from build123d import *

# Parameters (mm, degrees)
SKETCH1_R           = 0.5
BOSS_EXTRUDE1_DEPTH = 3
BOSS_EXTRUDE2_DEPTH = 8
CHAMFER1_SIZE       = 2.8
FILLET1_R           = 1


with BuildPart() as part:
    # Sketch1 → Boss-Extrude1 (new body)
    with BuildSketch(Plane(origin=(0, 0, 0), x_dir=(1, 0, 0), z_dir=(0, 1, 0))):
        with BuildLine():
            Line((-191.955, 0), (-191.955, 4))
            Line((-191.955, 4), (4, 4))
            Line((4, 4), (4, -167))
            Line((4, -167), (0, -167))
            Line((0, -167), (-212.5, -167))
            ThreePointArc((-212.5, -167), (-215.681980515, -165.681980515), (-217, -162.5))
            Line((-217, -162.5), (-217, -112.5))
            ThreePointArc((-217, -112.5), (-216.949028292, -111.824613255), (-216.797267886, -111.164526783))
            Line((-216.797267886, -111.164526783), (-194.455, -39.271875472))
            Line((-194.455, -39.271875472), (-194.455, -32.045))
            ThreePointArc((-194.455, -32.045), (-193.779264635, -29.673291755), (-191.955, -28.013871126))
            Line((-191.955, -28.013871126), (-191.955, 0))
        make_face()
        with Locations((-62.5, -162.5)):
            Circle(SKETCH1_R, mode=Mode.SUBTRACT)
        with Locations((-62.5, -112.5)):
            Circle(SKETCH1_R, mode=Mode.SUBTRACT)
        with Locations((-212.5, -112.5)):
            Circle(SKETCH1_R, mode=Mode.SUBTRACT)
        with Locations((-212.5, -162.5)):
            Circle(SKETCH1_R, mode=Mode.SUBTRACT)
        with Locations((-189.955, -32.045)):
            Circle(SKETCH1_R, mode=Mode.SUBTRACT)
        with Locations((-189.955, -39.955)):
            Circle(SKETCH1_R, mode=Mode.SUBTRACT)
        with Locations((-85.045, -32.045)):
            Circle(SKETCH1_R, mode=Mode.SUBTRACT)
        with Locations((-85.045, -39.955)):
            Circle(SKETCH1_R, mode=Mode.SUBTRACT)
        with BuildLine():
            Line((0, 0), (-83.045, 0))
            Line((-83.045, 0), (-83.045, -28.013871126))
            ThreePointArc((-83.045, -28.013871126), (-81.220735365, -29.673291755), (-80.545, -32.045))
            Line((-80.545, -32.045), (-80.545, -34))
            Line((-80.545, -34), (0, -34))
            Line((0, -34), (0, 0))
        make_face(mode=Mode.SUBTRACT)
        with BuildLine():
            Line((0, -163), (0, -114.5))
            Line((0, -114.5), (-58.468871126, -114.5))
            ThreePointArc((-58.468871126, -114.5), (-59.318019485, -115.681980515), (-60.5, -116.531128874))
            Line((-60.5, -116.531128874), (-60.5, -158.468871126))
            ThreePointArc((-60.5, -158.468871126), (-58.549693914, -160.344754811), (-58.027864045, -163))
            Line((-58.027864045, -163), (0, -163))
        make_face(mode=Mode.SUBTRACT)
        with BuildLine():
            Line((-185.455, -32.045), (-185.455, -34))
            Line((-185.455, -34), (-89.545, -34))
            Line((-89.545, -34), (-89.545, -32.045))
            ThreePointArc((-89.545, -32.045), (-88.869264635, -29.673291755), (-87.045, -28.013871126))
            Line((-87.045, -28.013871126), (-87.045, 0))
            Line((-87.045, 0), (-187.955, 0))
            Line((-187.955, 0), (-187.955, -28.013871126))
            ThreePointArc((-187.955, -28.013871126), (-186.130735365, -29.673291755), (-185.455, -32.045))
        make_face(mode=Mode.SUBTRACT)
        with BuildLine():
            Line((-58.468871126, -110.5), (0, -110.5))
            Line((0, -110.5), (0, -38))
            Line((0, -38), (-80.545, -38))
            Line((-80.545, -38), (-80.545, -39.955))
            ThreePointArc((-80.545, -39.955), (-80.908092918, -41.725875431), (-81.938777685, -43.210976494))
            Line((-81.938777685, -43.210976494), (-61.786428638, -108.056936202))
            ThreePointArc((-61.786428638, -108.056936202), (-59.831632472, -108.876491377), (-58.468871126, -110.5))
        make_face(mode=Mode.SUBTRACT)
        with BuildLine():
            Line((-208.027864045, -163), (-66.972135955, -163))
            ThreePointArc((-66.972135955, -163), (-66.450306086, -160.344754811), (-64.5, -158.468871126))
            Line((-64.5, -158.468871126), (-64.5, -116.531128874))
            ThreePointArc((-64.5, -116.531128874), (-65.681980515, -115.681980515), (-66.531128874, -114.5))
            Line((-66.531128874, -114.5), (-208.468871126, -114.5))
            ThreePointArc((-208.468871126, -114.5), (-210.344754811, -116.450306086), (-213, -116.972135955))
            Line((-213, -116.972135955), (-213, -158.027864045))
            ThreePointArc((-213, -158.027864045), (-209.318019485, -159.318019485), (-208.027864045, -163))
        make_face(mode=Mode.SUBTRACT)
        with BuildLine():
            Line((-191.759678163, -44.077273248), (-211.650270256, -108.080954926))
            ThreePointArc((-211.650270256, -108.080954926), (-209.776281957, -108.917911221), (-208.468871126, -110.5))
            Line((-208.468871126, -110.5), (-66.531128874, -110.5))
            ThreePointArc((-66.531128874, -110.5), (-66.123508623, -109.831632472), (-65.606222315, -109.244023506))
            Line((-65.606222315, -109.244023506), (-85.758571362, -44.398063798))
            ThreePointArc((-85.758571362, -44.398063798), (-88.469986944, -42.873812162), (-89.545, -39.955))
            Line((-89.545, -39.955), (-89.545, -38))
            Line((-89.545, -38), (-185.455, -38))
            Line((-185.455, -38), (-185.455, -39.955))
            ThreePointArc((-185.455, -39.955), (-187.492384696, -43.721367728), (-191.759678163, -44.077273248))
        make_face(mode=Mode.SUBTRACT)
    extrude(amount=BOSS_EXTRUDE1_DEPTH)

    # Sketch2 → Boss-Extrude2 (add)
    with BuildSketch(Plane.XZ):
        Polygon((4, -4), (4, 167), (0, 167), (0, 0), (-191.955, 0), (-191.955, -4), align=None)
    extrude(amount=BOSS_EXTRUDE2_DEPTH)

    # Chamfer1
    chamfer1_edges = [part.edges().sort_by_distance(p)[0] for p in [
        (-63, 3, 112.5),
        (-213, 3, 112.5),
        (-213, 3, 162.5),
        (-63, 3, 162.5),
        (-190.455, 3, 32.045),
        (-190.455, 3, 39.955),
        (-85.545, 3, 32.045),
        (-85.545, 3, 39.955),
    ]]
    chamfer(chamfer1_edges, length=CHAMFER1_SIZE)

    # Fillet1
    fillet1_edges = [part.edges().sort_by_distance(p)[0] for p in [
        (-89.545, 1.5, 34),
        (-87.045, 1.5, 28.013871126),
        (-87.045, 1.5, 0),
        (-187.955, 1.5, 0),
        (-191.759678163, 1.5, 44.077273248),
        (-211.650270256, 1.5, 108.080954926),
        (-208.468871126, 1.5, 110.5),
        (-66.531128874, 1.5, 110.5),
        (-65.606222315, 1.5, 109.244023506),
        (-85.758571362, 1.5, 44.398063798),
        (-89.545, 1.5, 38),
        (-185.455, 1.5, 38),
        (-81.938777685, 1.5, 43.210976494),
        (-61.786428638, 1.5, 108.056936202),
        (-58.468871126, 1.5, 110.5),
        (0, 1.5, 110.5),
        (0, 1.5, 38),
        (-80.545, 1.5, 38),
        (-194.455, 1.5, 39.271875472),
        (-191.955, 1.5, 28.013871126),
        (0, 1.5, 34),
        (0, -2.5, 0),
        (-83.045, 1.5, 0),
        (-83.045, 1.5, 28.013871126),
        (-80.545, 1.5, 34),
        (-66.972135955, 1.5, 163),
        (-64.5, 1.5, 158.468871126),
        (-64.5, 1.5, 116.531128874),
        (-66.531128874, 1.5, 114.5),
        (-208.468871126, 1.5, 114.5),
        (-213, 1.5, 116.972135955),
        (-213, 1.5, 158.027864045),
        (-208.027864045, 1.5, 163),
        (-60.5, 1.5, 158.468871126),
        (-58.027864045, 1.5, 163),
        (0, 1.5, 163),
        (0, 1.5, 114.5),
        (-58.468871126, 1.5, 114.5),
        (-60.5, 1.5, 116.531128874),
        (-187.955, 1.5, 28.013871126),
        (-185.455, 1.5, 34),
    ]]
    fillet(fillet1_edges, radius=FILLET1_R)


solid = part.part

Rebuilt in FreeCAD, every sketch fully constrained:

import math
import FreeCAD as App
import Part
import Sketcher


def edges_at(feature, points):
    """Names of the edges that pass closest to the given points."""
    edges = feature.Shape.Edges
    near = lambda p: min(range(len(edges)), key=lambda i: edges[i].distToShape(Part.Vertex(*p))[0])
    return sorted({f"Edge{near(p) + 1}" for p in points})

doc = App.newDocument("Part")
params = doc.addObject("Spreadsheet::Sheet", "Params")
for row, (alias, value) in enumerate([
    ("sketch1_diameter", "1 mm"),
    ("sketch1_radius", "4.5 mm"),
    ("sketch1_height", "50 mm"),
    ("sketch1_height2", "171 mm"),
    ("sketch1_height3", "34 mm"),
    ("pad1_length", "3 mm"),
    ("sketch2_width", "4 mm"),
    ("sketch2_height", "171 mm"),
    ("pad2_length", "8 mm"),
    ("chamfer_size", "2.8 mm"),
    ("fillet_radius", "1 mm"),
], start=1):
    params.set(f"A{row}", alias)
    params.set(f"B{row}", "=" + value)
    params.setAlias(f"B{row}", alias)

body = doc.addObject("PartDesign::Body", "Body")

sketch1 = body.newObject("Sketcher::SketchObject", "Sketch")
sketch1.AttachmentSupport = (doc.getObject("XZ_Plane"), [""])
sketch1.MapMode = "FlatFace"
sketch1.addGeometry(Part.LineSegment(App.Vector(4, -4, 0), App.Vector(-192, -4, 0)), False)
sketch1.addGeometry(Part.LineSegment(App.Vector(-192, -4, 0), App.Vector(-192, 28, 0)), False)
sketch1.addGeometry(Part.ArcOfCircle(Part.Circle(App.Vector(-190, 32, 0), App.Vector(0, 0, 1), 4.5), math.radians(-180), math.radians(-116)), False)
sketch1.addGeometry(Part.LineSegment(App.Vector(-194.5, 32, 0), App.Vector(-194.5, 39.3, 0)), False)
sketch1.addGeometry(Part.LineSegment(App.Vector(-194.5, 39.3, 0), App.Vector(-216.8, 111.2, 0)), False)
sketch1.addGeometry(Part.ArcOfCircle(Part.Circle(App.Vector(-212.5, 112.5, 0), App.Vector(0, 0, 1), 4.5), math.radians(-180), math.radians(-162.74)), False)
sketch1.addGeometry(Part.LineSegment(App.Vector(-217, 112.5, 0), App.Vector(-217, 162.5, 0)), False)
sketch1.addGeometry(Part.ArcOfCircle(Part.Circle(App.Vector(-212.5, 162.5, 0), App.Vector(0, 0, 1), 4.5), math.radians(90), math.radians(180)), False)
sketch1.addGeometry(Part.LineSegment(App.Vector(-212.5, 167, 0), App.Vector(4, 167, 0)), False)
sketch1.addGeometry(Part.LineSegment(App.Vector(4, 167, 0), App.Vector(4, -4, 0)), False)
sketch1.addGeometry(Part.LineSegment(App.Vector(0, 163, 0), App.Vector(-58, 163, 0)), False)
sketch1.addGeometry(Part.ArcOfCircle(Part.Circle(App.Vector(-62.5, 162.5, 0), App.Vector(0, 0, 1), 4.5), math.radians(-64), math.radians(6)), False)
sketch1.addGeometry(Part.LineSegment(App.Vector(-60.5, 158.5, 0), App.Vector(-60.5, 116.5, 0)), False)
sketch1.addGeometry(Part.ArcOfCircle(Part.Circle(App.Vector(-62.5, 112.5, 0), App.Vector(0, 0, 1), 4.5), math.radians(26), math.radians(64)), False)
sketch1.addGeometry(Part.LineSegment(App.Vector(-58.5, 114.5, 0), App.Vector(0, 114.5, 0)), False)
sketch1.addGeometry(Part.LineSegment(App.Vector(0, 114.5, 0), App.Vector(0, 163, 0)), False)
sketch1.addGeometry(Part.Circle(App.Vector(-62.5, 162.5, 0), App.Vector(0, 0, 1), 0.5), False)
sketch1.addGeometry(Part.Circle(App.Vector(-62.5, 112.5, 0), App.Vector(0, 0, 1), 0.5), False)
sketch1.addGeometry(Part.ArcOfCircle(Part.Circle(App.Vector(-212.5, 162.5, 0), App.Vector(0, 0, 1), 4.5), math.radians(-96), math.radians(6)), False)
sketch1.addGeometry(Part.LineSegment(App.Vector(-213, 158, 0), App.Vector(-213, 117, 0)), False)
sketch1.addGeometry(Part.ArcOfCircle(Part.Circle(App.Vector(-212.5, 112.5, 0), App.Vector(0, 0, 1), 4.5), math.radians(26), math.radians(96)), False)
sketch1.addGeometry(Part.LineSegment(App.Vector(-208.5, 114.5, 0), App.Vector(-66.5, 114.5, 0)), False)
sketch1.addGeometry(Part.ArcOfCircle(Part.Circle(App.Vector(-62.5, 112.5, 0), App.Vector(0, 0, 1), 4.5), math.radians(116), math.radians(154)), False)
sketch1.addGeometry(Part.LineSegment(App.Vector(-64.5, 116.5, 0), App.Vector(-64.5, 158.5, 0)), False)
sketch1.addGeometry(Part.ArcOfCircle(Part.Circle(App.Vector(-62.5, 162.5, 0), App.Vector(0, 0, 1), 4.5), math.radians(174), math.radians(244)), False)
sketch1.addGeometry(Part.LineSegment(App.Vector(-67, 163, 0), App.Vector(-208, 163, 0)), False)
sketch1.addGeometry(Part.Circle(App.Vector(-212.5, 162.5, 0), App.Vector(0, 0, 1), 0.5), False)
sketch1.addGeometry(Part.Circle(App.Vector(-212.5, 112.5, 0), App.Vector(0, 0, 1), 0.5), False)
sketch1.addGeometry(Part.ArcOfCircle(Part.Circle(App.Vector(-62.5, 112.5, 0), App.Vector(0, 0, 1), 4.5), math.radians(-81), math.radians(-26)), False)
sketch1.addGeometry(Part.LineSegment(App.Vector(-61.8, 108.1, 0), App.Vector(-81.9, 43.2, 0)), False)
sketch1.addGeometry(Part.ArcOfCircle(Part.Circle(App.Vector(-85, 40, 0), App.Vector(0, 0, 1), 4.5), math.radians(0), math.radians(46)), False)
sketch1.addGeometry(Part.LineSegment(App.Vector(-80.5, 40, 0), App.Vector(-80.5, 38, 0)), False)
sketch1.addGeometry(Part.LineSegment(App.Vector(-80.5, 38, 0), App.Vector(0, 38, 0)), False)
sketch1.addGeometry(Part.LineSegment(App.Vector(0, 38, 0), App.Vector(0, 110.5, 0)), False)
sketch1.addGeometry(Part.LineSegment(App.Vector(0, 110.5, 0), App.Vector(-58.5, 110.5, 0)), False)
sketch1.addGeometry(Part.LineSegment(App.Vector(0, 0, 0), App.Vector(0, 34, 0)), False)
sketch1.addGeometry(Part.LineSegment(App.Vector(0, 34, 0), App.Vector(-80.5, 34, 0)), False)
sketch1.addGeometry(Part.LineSegment(App.Vector(-80.5, 34, 0), App.Vector(-80.5, 32, 0)), False)
sketch1.addGeometry(Part.ArcOfCircle(Part.Circle(App.Vector(-85, 32, 0), App.Vector(0, 0, 1), 4.5), math.radians(-64), math.radians(0)), False)
sketch1.addGeometry(Part.LineSegment(App.Vector(-83, 28, 0), App.Vector(-83, 0, 0)), False)
sketch1.addGeometry(Part.LineSegment(App.Vector(-83, 0, 0), App.Vector(0, 0, 0)), False)
sketch1.addGeometry(Part.Circle(App.Vector(-85, 40, 0), App.Vector(0, 0, 1), 0.5), False)
sketch1.addGeometry(Part.Circle(App.Vector(-85, 32, 0), App.Vector(0, 0, 1), 0.5), False)
sketch1.addGeometry(Part.ArcOfCircle(Part.Circle(App.Vector(-190, 40, 0), App.Vector(0, 0, 1), 4.5), math.radians(0), math.radians(114)), False)
sketch1.addGeometry(Part.LineSegment(App.Vector(-185.5, 40, 0), App.Vector(-185.5, 38, 0)), False)
sketch1.addGeometry(Part.LineSegment(App.Vector(-185.5, 38, 0), App.Vector(-89.5, 38, 0)), False)
sketch1.addGeometry(Part.LineSegment(App.Vector(-89.5, 38, 0), App.Vector(-89.5, 40, 0)), False)
sketch1.addGeometry(Part.ArcOfCircle(Part.Circle(App.Vector(-85, 40, 0), App.Vector(0, 0, 1), 4.5), math.radians(99), math.radians(180)), False)
sketch1.addGeometry(Part.LineSegment(App.Vector(-85.8, 44.4, 0), App.Vector(-65.6, 109.2, 0)), False)
sketch1.addGeometry(Part.ArcOfCircle(Part.Circle(App.Vector(-62.5, 112.5, 0), App.Vector(0, 0, 1), 4.5), math.radians(-153.61), math.radians(-133.65)), False)
sketch1.addGeometry(Part.LineSegment(App.Vector(-66.5, 110.5, 0), App.Vector(-208.5, 110.5, 0)), False)
sketch1.addGeometry(Part.ArcOfCircle(Part.Circle(App.Vector(-212.5, 112.5, 0), App.Vector(0, 0, 1), 4.5), math.radians(-79), math.radians(-26)), False)
sketch1.addGeometry(Part.LineSegment(App.Vector(-211.7, 108.1, 0), App.Vector(-191.8, 44.1, 0)), False)
sketch1.addGeometry(Part.ArcOfCircle(Part.Circle(App.Vector(-190, 32, 0), App.Vector(0, 0, 1), 4.5), math.radians(-64), math.radians(0)), False)
sketch1.addGeometry(Part.LineSegment(App.Vector(-188, 28, 0), App.Vector(-188, 0, 0)), False)
sketch1.addGeometry(Part.LineSegment(App.Vector(-188, 0, 0), App.Vector(-87, 0, 0)), False)
sketch1.addGeometry(Part.LineSegment(App.Vector(-87, 0, 0), App.Vector(-87, 28, 0)), False)
sketch1.addGeometry(Part.ArcOfCircle(Part.Circle(App.Vector(-85, 32, 0), App.Vector(0, 0, 1), 4.5), math.radians(-180), math.radians(-116)), False)
sketch1.addGeometry(Part.LineSegment(App.Vector(-89.5, 32, 0), App.Vector(-89.5, 34, 0)), False)
sketch1.addGeometry(Part.LineSegment(App.Vector(-89.5, 34, 0), App.Vector(-185.5, 34, 0)), False)
sketch1.addGeometry(Part.LineSegment(App.Vector(-185.5, 34, 0), App.Vector(-185.5, 32, 0)), False)
sketch1.addGeometry(Part.Circle(App.Vector(-190, 40, 0), App.Vector(0, 0, 1), 0.5), False)
sketch1.addGeometry(Part.Circle(App.Vector(-190, 32, 0), App.Vector(0, 0, 1), 0.5), False)
sketch1.addConstraint(Sketcher.Constraint("Coincident", 0, 2, 1, 1))
sketch1.addConstraint(Sketcher.Constraint("Coincident", 1, 2, 2, 2))
sketch1.addConstraint(Sketcher.Constraint("Tangent", 2, 1, 3, 1))
sketch1.addConstraint(Sketcher.Constraint("Coincident", 3, 2, 4, 1))
sketch1.addConstraint(Sketcher.Constraint("Tangent", 4, 2, 5, 2))
sketch1.addConstraint(Sketcher.Constraint("Tangent", 5, 1, 6, 1))
sketch1.addConstraint(Sketcher.Constraint("Tangent", 6, 2, 7, 2))
sketch1.addConstraint(Sketcher.Constraint("Tangent", 7, 1, 8, 1))
sketch1.addConstraint(Sketcher.Constraint("Coincident", 8, 2, 9, 1))
sketch1.addConstraint(Sketcher.Constraint("Coincident", 9, 2, 0, 1))
sketch1.addConstraint(Sketcher.Constraint("Coincident", 10, 2, 11, 2))
sketch1.addConstraint(Sketcher.Constraint("Coincident", 11, 1, 12, 1))
sketch1.addConstraint(Sketcher.Constraint("Coincident", 12, 2, 13, 2))
sketch1.addConstraint(Sketcher.Constraint("Coincident", 13, 1, 14, 1))
sketch1.addConstraint(Sketcher.Constraint("Coincident", 14, 2, 15, 1))
sketch1.addConstraint(Sketcher.Constraint("Coincident", 15, 2, 10, 1))
sketch1.addConstraint(Sketcher.Constraint("Coincident", 18, 1, 19, 1))
sketch1.addConstraint(Sketcher.Constraint("Coincident", 19, 2, 20, 2))
sketch1.addConstraint(Sketcher.Constraint("Coincident", 20, 1, 21, 1))
sketch1.addConstraint(Sketcher.Constraint("Coincident", 21, 2, 22, 2))
sketch1.addConstraint(Sketcher.Constraint("Coincident", 22, 1, 23, 1))
sketch1.addConstraint(Sketcher.Constraint("Coincident", 23, 2, 24, 2))
sketch1.addConstraint(Sketcher.Constraint("Coincident", 24, 1, 25, 1))
sketch1.addConstraint(Sketcher.Constraint("Coincident", 25, 2, 18, 2))
sketch1.addConstraint(Sketcher.Constraint("Coincident", 28, 1, 29, 1))
sketch1.addConstraint(Sketcher.Constraint("Coincident", 29, 2, 30, 2))
sketch1.addConstraint(Sketcher.Constraint("Tangent", 30, 1, 31, 1))
sketch1.addConstraint(Sketcher.Constraint("Coincident", 31, 2, 32, 1))
sketch1.addConstraint(Sketcher.Constraint("Coincident", 32, 2, 33, 1))
sketch1.addConstraint(Sketcher.Constraint("Coincident", 33, 2, 34, 1))
sketch1.addConstraint(Sketcher.Constraint("Coincident", 34, 2, 28, 2))
sketch1.addConstraint(Sketcher.Constraint("Coincident", 35, 2, 36, 1))
sketch1.addConstraint(Sketcher.Constraint("Coincident", 36, 2, 37, 1))
sketch1.addConstraint(Sketcher.Constraint("Tangent", 37, 2, 38, 2))
sketch1.addConstraint(Sketcher.Constraint("Coincident", 38, 1, 39, 1))
sketch1.addConstraint(Sketcher.Constraint("Coincident", 39, 2, 40, 1))
sketch1.addConstraint(Sketcher.Constraint("Coincident", 40, 2, 35, 1))
sketch1.addConstraint(Sketcher.Constraint("Tangent", 43, 1, 44, 1))
sketch1.addConstraint(Sketcher.Constraint("Coincident", 44, 2, 45, 1))
sketch1.addConstraint(Sketcher.Constraint("Coincident", 45, 2, 46, 1))
sketch1.addConstraint(Sketcher.Constraint("Tangent", 46, 2, 47, 2))
sketch1.addConstraint(Sketcher.Constraint("Coincident", 47, 1, 48, 1))
sketch1.addConstraint(Sketcher.Constraint("Coincident", 48, 2, 49, 2))
sketch1.addConstraint(Sketcher.Constraint("Coincident", 49, 1, 50, 1))
sketch1.addConstraint(Sketcher.Constraint("Coincident", 50, 2, 51, 2))
sketch1.addConstraint(Sketcher.Constraint("Coincident", 51, 1, 52, 1))
sketch1.addConstraint(Sketcher.Constraint("Coincident", 52, 2, 43, 2))
sketch1.addConstraint(Sketcher.Constraint("Coincident", 53, 1, 54, 1))
sketch1.addConstraint(Sketcher.Constraint("Coincident", 54, 2, 55, 1))
sketch1.addConstraint(Sketcher.Constraint("Coincident", 55, 2, 56, 1))
sketch1.addConstraint(Sketcher.Constraint("Coincident", 56, 2, 57, 2))
sketch1.addConstraint(Sketcher.Constraint("Tangent", 57, 1, 58, 1))
sketch1.addConstraint(Sketcher.Constraint("Coincident", 58, 2, 59, 1))
sketch1.addConstraint(Sketcher.Constraint("Coincident", 59, 2, 60, 1))
sketch1.addConstraint(Sketcher.Constraint("Tangent", 60, 2, 53, 2))
sketch1.addConstraint(Sketcher.Constraint("Horizontal", 0))
sketch1.addConstraint(Sketcher.Constraint("Vertical", 1))
sketch1.addConstraint(Sketcher.Constraint("Vertical", 3))
sketch1.addConstraint(Sketcher.Constraint("Vertical", 6))
sketch1.addConstraint(Sketcher.Constraint("Horizontal", 8))
sketch1.addConstraint(Sketcher.Constraint("Vertical", 9))
sketch1.addConstraint(Sketcher.Constraint("Horizontal", 10))
sketch1.addConstraint(Sketcher.Constraint("Vertical", 12))
sketch1.addConstraint(Sketcher.Constraint("Horizontal", 14))
sketch1.addConstraint(Sketcher.Constraint("Vertical", 15))
sketch1.addConstraint(Sketcher.Constraint("Vertical", 19))
sketch1.addConstraint(Sketcher.Constraint("Horizontal", 21))
sketch1.addConstraint(Sketcher.Constraint("Vertical", 23))
sketch1.addConstraint(Sketcher.Constraint("Horizontal", 25))
sketch1.addConstraint(Sketcher.Constraint("Vertical", 31))
sketch1.addConstraint(Sketcher.Constraint("Horizontal", 32))
sketch1.addConstraint(Sketcher.Constraint("Vertical", 33))
sketch1.addConstraint(Sketcher.Constraint("Horizontal", 34))
sketch1.addConstraint(Sketcher.Constraint("Vertical", 35))
sketch1.addConstraint(Sketcher.Constraint("Horizontal", 36))
sketch1.addConstraint(Sketcher.Constraint("Vertical", 37))
sketch1.addConstraint(Sketcher.Constraint("Vertical", 39))
sketch1.addConstraint(Sketcher.Constraint("Horizontal", 40))
sketch1.addConstraint(Sketcher.Constraint("Vertical", 44))
sketch1.addConstraint(Sketcher.Constraint("Horizontal", 45))
sketch1.addConstraint(Sketcher.Constraint("Vertical", 46))
sketch1.addConstraint(Sketcher.Constraint("Horizontal", 50))
sketch1.addConstraint(Sketcher.Constraint("Vertical", 54))
sketch1.addConstraint(Sketcher.Constraint("Horizontal", 55))
sketch1.addConstraint(Sketcher.Constraint("Vertical", 56))
sketch1.addConstraint(Sketcher.Constraint("Vertical", 58))
sketch1.addConstraint(Sketcher.Constraint("Horizontal", 59))
sketch1.addConstraint(Sketcher.Constraint("Vertical", 60))
sketch1.addConstraint(Sketcher.Constraint("Coincident", 40, 2, -1, 1))
sketch1.addConstraint(Sketcher.Constraint("Coincident", 16, 3, 11, 3))
sketch1.addConstraint(Sketcher.Constraint("Coincident", 17, 3, 13, 3))
sketch1.addConstraint(Sketcher.Constraint("Coincident", 18, 3, 7, 3))
sketch1.addConstraint(Sketcher.Constraint("Coincident", 20, 3, 5, 3))
sketch1.addConstraint(Sketcher.Constraint("Coincident", 22, 3, 13, 3))
sketch1.addConstraint(Sketcher.Constraint("Coincident", 24, 3, 11, 3))
sketch1.addConstraint(Sketcher.Constraint("Coincident", 26, 3, 7, 3))
sketch1.addConstraint(Sketcher.Constraint("Coincident", 27, 3, 5, 3))
sketch1.addConstraint(Sketcher.Constraint("Coincident", 28, 3, 13, 3))
sketch1.addConstraint(Sketcher.Constraint("Coincident", 41, 3, 30, 3))
sketch1.addConstraint(Sketcher.Constraint("Coincident", 42, 3, 38, 3))
sketch1.addConstraint(Sketcher.Constraint("Coincident", 47, 3, 30, 3))
sketch1.addConstraint(Sketcher.Constraint("Coincident", 49, 3, 13, 3))
sketch1.addConstraint(Sketcher.Constraint("Coincident", 51, 3, 5, 3))
sketch1.addConstraint(Sketcher.Constraint("Coincident", 53, 3, 2, 3))
sketch1.addConstraint(Sketcher.Constraint("Coincident", 57, 3, 38, 3))
sketch1.addConstraint(Sketcher.Constraint("Coincident", 61, 3, 43, 3))
sketch1.addConstraint(Sketcher.Constraint("Coincident", 62, 3, 2, 3))
sketch1.addConstraint(Sketcher.Constraint("Equal", 2, 5))
sketch1.addConstraint(Sketcher.Constraint("Equal", 5, 7))
sketch1.addConstraint(Sketcher.Constraint("Equal", 7, 11))
sketch1.addConstraint(Sketcher.Constraint("Equal", 11, 13))
sketch1.addConstraint(Sketcher.Constraint("Equal", 16, 17))
sketch1.addConstraint(Sketcher.Constraint("Equal", 13, 18))
sketch1.addConstraint(Sketcher.Constraint("Equal", 18, 20))
sketch1.addConstraint(Sketcher.Constraint("Equal", 20, 22))
sketch1.addConstraint(Sketcher.Constraint("Equal", 22, 24))
sketch1.addConstraint(Sketcher.Constraint("Equal", 17, 26))
sketch1.addConstraint(Sketcher.Constraint("Equal", 26, 27))
sketch1.addConstraint(Sketcher.Constraint("Equal", 24, 28))
sketch1.addConstraint(Sketcher.Constraint("Equal", 28, 30))
sketch1.addConstraint(Sketcher.Constraint("Equal", 30, 38))
sketch1.addConstraint(Sketcher.Constraint("Equal", 27, 41))
sketch1.addConstraint(Sketcher.Constraint("Equal", 41, 42))
sketch1.addConstraint(Sketcher.Constraint("Equal", 38, 43))
sketch1.addConstraint(Sketcher.Constraint("Equal", 43, 47))
sketch1.addConstraint(Sketcher.Constraint("Equal", 47, 49))
sketch1.addConstraint(Sketcher.Constraint("Equal", 49, 51))
sketch1.addConstraint(Sketcher.Constraint("Equal", 51, 53))
sketch1.addConstraint(Sketcher.Constraint("Equal", 53, 57))
sketch1.addConstraint(Sketcher.Constraint("Equal", 42, 61))
sketch1.addConstraint(Sketcher.Constraint("Equal", 61, 62))
sketch1.addConstraint(Sketcher.Constraint("PointOnObject", 14, 2, -2))
sketch1.addConstraint(Sketcher.Constraint("PointOnObject", 32, 2, -2))
sketch1.addConstraint(Sketcher.Constraint("PointOnObject", 54, 2, -1))
sketch1.addConstraint(Sketcher.Constraint("Parallel", 29, 48))
sketch1.addConstraint(Sketcher.Constraint("Parallel", 4, 52))
sketch1.addConstraint(Sketcher.Constraint("Horizontal", 7, 3, 11, 3))
sketch1.addConstraint(Sketcher.Constraint("Horizontal", 5, 3, 13, 3))
sketch1.addConstraint(Sketcher.Constraint("Horizontal", 2, 3, 38, 3))
sketch1.addConstraint(Sketcher.Constraint("Horizontal", 41, 3, 43, 3))
sketch1.addConstraint(Sketcher.Constraint("Horizontal", 14, 2, 20, 1))
sketch1.addConstraint(Sketcher.Constraint("Horizontal", 12, 2, 22, 1))
sketch1.addConstraint(Sketcher.Constraint("Horizontal", 11, 1, 23, 2))
sketch1.addConstraint(Sketcher.Constraint("Horizontal", 15, 2, 24, 1))
sketch1.addConstraint(Sketcher.Constraint("Horizontal", 1, 2, 38, 1))
sketch1.addConstraint(Sketcher.Constraint("Horizontal", 32, 2, 44, 2))
sketch1.addConstraint(Sketcher.Constraint("Horizontal", 34, 2, 49, 1))
sketch1.addConstraint(Sketcher.Constraint("Horizontal", 38, 1, 53, 1))
sketch1.addConstraint(Sketcher.Constraint("Horizontal", 53, 1, 56, 2))
sketch1.addConstraint(Sketcher.Constraint("Horizontal", 36, 2, 58, 2))
sketch1.addConstraint(Sketcher.Constraint("Vertical", 30, 3, 38, 3))
sketch1.addConstraint(Sketcher.Constraint("Vertical", 2, 3, 43, 3))
sketch1.addConstraint(Sketcher.Constraint("Vertical", 13, 1, 34, 2))
sketch1.addConstraint(Sketcher.Constraint("Equal", 31, 37))
sketch1.addConstraint(Sketcher.Constraint("Equal", 29, 48))
sketch1.addConstraint(Sketcher.Constraint("Diameter", 16, 1.0))
sketch1.addConstraint(Sketcher.Constraint("Radius", 2, 4.5))
sketch1.addConstraint(Sketcher.Constraint("DistanceY", 6, 1, 6, 2, 50.0))
sketch1.addConstraint(Sketcher.Constraint("DistanceY", 9, 2, 9, 1, 171.0))
sketch1.addConstraint(Sketcher.Constraint("DistanceY", 35, 1, 35, 2, 34.0))
sketch1.addConstraint(Sketcher.Constraint("DistanceX", 8, 1, 8, 2, 216.5))
sketch1.addConstraint(Sketcher.Constraint("DistanceY", 15, 1, 15, 2, 48.5))
sketch1.addConstraint(Sketcher.Constraint("DistanceY", 33, 1, 33, 2, 72.5))
sketch1.addConstraint(Sketcher.Constraint("DistanceY", 0, 2, -1, 1, 4.0))
sketch1.addConstraint(Sketcher.Constraint("DistanceX", 5, 1, -1, 1, 217.0))
sketch1.addConstraint(Sketcher.Constraint("DistanceY", -1, 1, 10, 2, 163.0))
sketch1.addConstraint(Sketcher.Constraint("DistanceX", 18, 1, -1, 1, 213.0))
sketch1.addConstraint(Sketcher.Constraint("DistanceX", 45, 1, 45, 2, 95.91))
sketch1.addConstraint(Sketcher.Constraint("DistanceX", 55, 1, 55, 2, 100.91))
sketch1.addConstraint(Sketcher.Constraint("DistanceX", 11, 3, -1, 1, 62.5))
sketch1.addConstraint(Sketcher.Constraint("DistanceX", 11, 1, -1, 1, 60.5))
sketch1.addConstraint(Sketcher.Constraint("DistanceX", 0, 2, 0, 1, 195.955))
sketch1.addConstraint(Sketcher.Constraint("DistanceY", 31, 2, 31, 1, 1.955))
sketch1.addConstraint(Sketcher.Constraint("Distance", 4, 75.284329))
sketch1.addConstraint(Sketcher.Constraint("Distance", 52, 67.023182))
sketch1.addConstraint(Sketcher.Constraint("DistanceX", 28, 1, -1, 1, 61.786429))
sketch1.addConstraint(Sketcher.Constraint("Distance", 29, 67.905196))
sketch1.setExpression("Constraints[155]", "Params.sketch1_diameter")
sketch1.setExpression("Constraints[156]", "Params.sketch1_radius")
sketch1.setExpression("Constraints[157]", "Params.sketch1_height")
sketch1.setExpression("Constraints[158]", "Params.sketch1_height2")
sketch1.setExpression("Constraints[159]", "Params.sketch1_height3")
pad1 = body.newObject("PartDesign::Pad", "Pad")
pad1.Profile = sketch1
pad1.setExpression("Length", "Params.pad1_length")
pad1.Reversed = True

sketch2 = body.newObject("Sketcher::SketchObject", "Sketch001")
sketch2.AttachmentSupport = (doc.getObject("XZ_Plane"), [""])
sketch2.MapMode = "FlatFace"
sketch2.addGeometry(Part.LineSegment(App.Vector(4, -4, 0), App.Vector(4, 167, 0)), False)
sketch2.addGeometry(Part.LineSegment(App.Vector(4, 167, 0), App.Vector(0, 167, 0)), False)
sketch2.addGeometry(Part.LineSegment(App.Vector(0, 167, 0), App.Vector(0, 0, 0)), False)
sketch2.addGeometry(Part.LineSegment(App.Vector(0, 0, 0), App.Vector(-192, 0, 0)), False)
sketch2.addGeometry(Part.LineSegment(App.Vector(-192, 0, 0), App.Vector(-192, -4, 0)), False)
sketch2.addGeometry(Part.LineSegment(App.Vector(-192, -4, 0), App.Vector(4, -4, 0)), False)
sketch2.addConstraint(Sketcher.Constraint("Coincident", 0, 2, 1, 1))
sketch2.addConstraint(Sketcher.Constraint("Coincident", 1, 2, 2, 1))
sketch2.addConstraint(Sketcher.Constraint("Coincident", 2, 2, 3, 1))
sketch2.addConstraint(Sketcher.Constraint("Coincident", 3, 2, 4, 1))
sketch2.addConstraint(Sketcher.Constraint("Coincident", 4, 2, 5, 1))
sketch2.addConstraint(Sketcher.Constraint("Coincident", 5, 2, 0, 1))
sketch2.addConstraint(Sketcher.Constraint("Vertical", 0))
sketch2.addConstraint(Sketcher.Constraint("Horizontal", 1))
sketch2.addConstraint(Sketcher.Constraint("Vertical", 2))
sketch2.addConstraint(Sketcher.Constraint("Horizontal", 3))
sketch2.addConstraint(Sketcher.Constraint("Vertical", 4))
sketch2.addConstraint(Sketcher.Constraint("Horizontal", 5))
sketch2.addConstraint(Sketcher.Constraint("Coincident", 2, 2, -1, 1))
sketch2.addConstraint(Sketcher.Constraint("Equal", 1, 4))
sketch2.addConstraint(Sketcher.Constraint("DistanceX", 1, 2, 1, 1, 4.0))
sketch2.addConstraint(Sketcher.Constraint("DistanceY", 0, 1, 0, 2, 171.0))
sketch2.addConstraint(Sketcher.Constraint("DistanceX", 3, 2, 3, 1, 191.955))
sketch2.setExpression("Constraints[14]", "Params.sketch2_width")
sketch2.setExpression("Constraints[15]", "Params.sketch2_height")
pad2 = body.newObject("PartDesign::Pad", "Pad001")
pad2.Profile = sketch2
pad2.setExpression("Length", "Params.pad2_length")
doc.recompute()

chamfer = body.newObject("PartDesign::Chamfer", "Chamfer")
chamfer.Base = (pad2, edges_at(pad2, [
    (-63, 3, 112.5),
    (-213, 3, 112.5),
    (-213, 3, 162.5),
    (-63, 3, 162.5),
    (-190.455, 3, 32.045),
    (-190.455, 3, 39.955),
    (-85.545, 3, 32.045),
    (-85.545, 3, 39.955),
]))
chamfer.setExpression("Size", "Params.chamfer_size")
doc.recompute()

fillet = body.newObject("PartDesign::Fillet", "Fillet")
fillet.Base = (chamfer, edges_at(chamfer, [
    (-89.545, 1.5, 34),
    (-87.045, 1.5, 28.014),
    (-87.045, 1.5, 0),
    (-187.955, 1.5, 0),
    (-191.76, 1.5, 44.077),
    (-211.65, 1.5, 108.081),
    (-208.469, 1.5, 110.5),
    (-66.531, 1.5, 110.5),
    (-65.606, 1.5, 109.244),
    (-85.759, 1.5, 44.398),
    (-89.545, 1.5, 38),
    (-185.455, 1.5, 38),
    (-81.939, 1.5, 43.211),
    (-61.786, 1.5, 108.057),
    (-58.469, 1.5, 110.5),
    (0, 1.5, 110.5),
    (0, 1.5, 38),
    (-80.545, 1.5, 38),
    (-194.455, 1.5, 39.272),
    (-191.955, 1.5, 28.014),
    (0, 1.5, 34),
    (0, -2.5, 0),
    (-83.045, 1.5, 0),
    (-83.045, 1.5, 28.014),
    (-80.545, 1.5, 34),
    (-66.972, 1.5, 163),
    (-64.5, 1.5, 158.469),
    (-64.5, 1.5, 116.531),
    (-66.531, 1.5, 114.5),
    (-208.469, 1.5, 114.5),
    (-213, 1.5, 116.972),
    (-213, 1.5, 158.028),
    (-208.028, 1.5, 163),
    (-60.5, 1.5, 158.469),
    (-58.028, 1.5, 163),
    (0, 1.5, 163),
    (0, 1.5, 114.5),
    (-58.469, 1.5, 114.5),
    (-60.5, 1.5, 116.531),
    (-187.955, 1.5, 28.014),
    (-185.455, 1.5, 34),
]))
fillet.setExpression("Radius", "Params.fillet_radius")

doc.recompute()
